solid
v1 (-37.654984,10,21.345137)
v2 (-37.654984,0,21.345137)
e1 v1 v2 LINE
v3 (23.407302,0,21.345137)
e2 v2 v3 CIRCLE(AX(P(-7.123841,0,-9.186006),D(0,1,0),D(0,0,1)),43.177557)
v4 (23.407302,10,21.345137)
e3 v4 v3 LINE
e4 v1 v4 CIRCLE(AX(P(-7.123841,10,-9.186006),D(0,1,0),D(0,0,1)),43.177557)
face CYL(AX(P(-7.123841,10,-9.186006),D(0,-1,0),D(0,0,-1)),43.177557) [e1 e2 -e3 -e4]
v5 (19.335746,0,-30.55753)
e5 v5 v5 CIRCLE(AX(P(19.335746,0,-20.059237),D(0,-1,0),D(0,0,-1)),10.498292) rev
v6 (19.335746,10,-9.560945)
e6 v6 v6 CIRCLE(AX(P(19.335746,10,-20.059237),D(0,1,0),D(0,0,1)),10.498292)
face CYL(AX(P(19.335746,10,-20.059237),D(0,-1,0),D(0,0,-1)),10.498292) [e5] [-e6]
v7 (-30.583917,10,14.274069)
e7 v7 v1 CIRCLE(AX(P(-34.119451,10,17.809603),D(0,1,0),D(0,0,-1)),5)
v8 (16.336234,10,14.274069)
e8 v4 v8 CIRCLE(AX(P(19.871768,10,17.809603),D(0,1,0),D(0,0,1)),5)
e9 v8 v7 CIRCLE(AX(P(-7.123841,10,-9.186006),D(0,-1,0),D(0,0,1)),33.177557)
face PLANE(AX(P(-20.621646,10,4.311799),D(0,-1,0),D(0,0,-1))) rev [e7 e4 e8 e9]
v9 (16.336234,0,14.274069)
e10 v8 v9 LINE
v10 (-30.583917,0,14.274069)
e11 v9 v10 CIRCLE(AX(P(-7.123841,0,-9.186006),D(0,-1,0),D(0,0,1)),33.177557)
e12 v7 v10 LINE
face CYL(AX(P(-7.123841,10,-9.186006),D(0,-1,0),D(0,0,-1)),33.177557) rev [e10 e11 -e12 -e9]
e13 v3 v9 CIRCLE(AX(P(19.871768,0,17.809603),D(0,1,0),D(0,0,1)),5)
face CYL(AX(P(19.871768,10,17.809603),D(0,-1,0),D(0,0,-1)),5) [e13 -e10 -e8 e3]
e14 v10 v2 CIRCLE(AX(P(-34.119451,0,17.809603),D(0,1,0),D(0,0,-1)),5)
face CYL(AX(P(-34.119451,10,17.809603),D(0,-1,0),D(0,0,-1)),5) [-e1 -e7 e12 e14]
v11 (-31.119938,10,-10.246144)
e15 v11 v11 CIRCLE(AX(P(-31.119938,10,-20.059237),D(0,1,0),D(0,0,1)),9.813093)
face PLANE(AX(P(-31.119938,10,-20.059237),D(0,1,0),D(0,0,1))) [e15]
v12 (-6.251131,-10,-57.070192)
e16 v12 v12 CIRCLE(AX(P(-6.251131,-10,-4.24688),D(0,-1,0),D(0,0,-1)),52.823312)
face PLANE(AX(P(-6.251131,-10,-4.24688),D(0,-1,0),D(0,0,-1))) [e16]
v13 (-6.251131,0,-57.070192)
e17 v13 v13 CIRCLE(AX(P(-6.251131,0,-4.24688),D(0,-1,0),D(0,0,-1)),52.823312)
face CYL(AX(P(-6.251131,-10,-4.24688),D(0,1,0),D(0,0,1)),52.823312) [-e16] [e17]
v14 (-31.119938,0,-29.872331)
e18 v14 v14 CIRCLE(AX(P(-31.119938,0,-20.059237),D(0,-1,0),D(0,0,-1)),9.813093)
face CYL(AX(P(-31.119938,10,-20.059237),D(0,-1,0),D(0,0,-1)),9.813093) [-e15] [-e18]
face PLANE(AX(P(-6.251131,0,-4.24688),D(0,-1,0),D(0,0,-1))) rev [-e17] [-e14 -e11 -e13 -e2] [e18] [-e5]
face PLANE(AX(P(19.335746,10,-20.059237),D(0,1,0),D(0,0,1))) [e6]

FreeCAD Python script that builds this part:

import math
import FreeCAD as App
import Part
import Sketcher

V = App.Vector

doc = App.newDocument("Part")
body = doc.addObject("PartDesign::Body", "Body")

# Sketch on XZ plane
sketch1 = body.newObject("Sketcher::SketchObject", "Sketch")
sketch1.AttachmentSupport = (doc.getObject("XZ_Plane"), [""])
sketch1.MapMode = "FlatFace"
sketch1.addGeometry(Part.Circle(V(-31.119938, -20.059237, 0), V(0, 0, 1), 9.813093), False)
sketch1.addConstraint(Sketcher.Constraint("Diameter", 0, 19.626186))
sketch1.addConstraint(Sketcher.Constraint("DistanceX", 0, 3, -1, 1, 31.119938))
sketch1.addConstraint(Sketcher.Constraint("DistanceY", 0, 3, -1, 1, 20.059237))
pad1 = body.newObject("PartDesign::Pad", "Pad")
pad1.Profile = sketch1
pad1.Length = 10
pad1.Reversed = True
body2 = doc.addObject("PartDesign::Body", "Body001")

# Sketch on XZ plane
sketch2 = body2.newObject("Sketcher::SketchObject", "Sketch001")
sketch2.AttachmentSupport = (doc.getObject("XZ_Plane001"), [""])
sketch2.MapMode = "FlatFace"
sketch2.addGeometry(Part.Circle(V(19.335746, -20.059237, 0), V(0, 0, 1), 10.498292), False)
sketch2.addConstraint(Sketcher.Constraint("Diameter", 0, 20.996585))
sketch2.addConstraint(Sketcher.Constraint("DistanceX", -1, 1, 0, 3, 19.335746))
sketch2.addConstraint(Sketcher.Constraint("DistanceY", 0, 3, -1, 1, 20.059237))
pad2 = body2.newObject("PartDesign::Pad", "Pad001")
pad2.Profile = sketch2
pad2.Length = 10
pad2.Reversed = True
body3 = doc.addObject("PartDesign::Body", "Body002")

# Sketch on XZ plane
sketch3 = body3.newObject("Sketcher::SketchObject", "Sketch002")
sketch3.AttachmentSupport = (doc.getObject("XZ_Plane002"), [""])
sketch3.MapMode = "FlatFace"
sketch3.addGeometry(Part.ArcOfCircle(Part.Circle(V(-7.123841, -9.186006, 0), V(0, 0, 1), 43.177557), math.radians(45), math.radians(135)), False)
sketch3.addGeometry(Part.ArcOfCircle(Part.Circle(V(19.871768, 17.809603, 0), V(0, 0, 1), 5), math.radians(-135), math.radians(45)), False)
sketch3.addGeometry(Part.ArcOfCircle(Part.Circle(V(-7.123841, -9.186006, 0), V(0, 0, 1), 33.177557), math.radians(45), math.radians(135)), False)
sketch3.addGeometry(Part.ArcOfCircle(Part.Circle(V(-34.119451, 17.809603, 0), V(0, 0, 1), 5), math.radians(135), math.radians(315)), False)
sketch3.addConstraint(Sketcher.Constraint("Tangent", 0, 1, 1, 2))
sketch3.addConstraint(Sketcher.Constraint("Tangent", 1, 1, 2, 1))
sketch3.addConstraint(Sketcher.Constraint("Tangent", 2, 2, 3, 2))
sketch3.addConstraint(Sketcher.Constraint("Tangent", 3, 1, 0, 2))
sketch3.addConstraint(Sketcher.Constraint("Coincident", 2, 3, 0, 3))
sketch3.addConstraint(Sketcher.Constraint("Horizontal", 1, 3, 3, 3))
sketch3.addConstraint(Sketcher.Constraint("Radius", 1, 5.0))
sketch3.addConstraint(Sketcher.Constraint("Radius", 0, 43.177557))
sketch3.addConstraint(Sketcher.Constraint("DistanceX", -1, 1, 0, 1, 23.407302))
sketch3.addConstraint(Sketcher.Constraint("DistanceX", 0, 3, -1, 1, 7.123841))
sketch3.addConstraint(Sketcher.Constraint("DistanceY", -1, 1, 1, 1, 14.274069))
pad3 = body3.newObject("PartDesign::Pad", "Pad002")
pad3.Profile = sketch3
pad3.Length = 10
pad3.Reversed = True
body.AllowCompound = True
doc.recompute()

boolean = body.newObject("PartDesign::Boolean", "Boolean")
boolean.Type = "Fuse"
boolean.addObjects([body2])
doc.recompute()

boolean2 = body.newObject("PartDesign::Boolean", "Boolean001")
boolean2.Type = "Fuse"
boolean2.addObjects([body3])

# Sketch on XZ plane
sketch4 = body.newObject("Sketcher::SketchObject", "Sketch003")
sketch4.AttachmentSupport = (doc.getObject("XZ_Plane"), [""])
sketch4.MapMode = "FlatFace"
sketch4.addGeometry(Part.Circle(V(-6.251131, -4.24688, 0), V(0, 0, 1), 52.823312), False)
sketch4.addConstraint(Sketcher.Constraint("Diameter", 0, 105.646624))
sketch4.addConstraint(Sketcher.Constraint("DistanceX", 0, 3, -1, 1, 6.251131))
sketch4.addConstraint(Sketcher.Constraint("DistanceY", 0, 3, -1, 1, 4.24688))
pad4 = body.newObject("PartDesign::Pad", "Pad003")
pad4.Profile = sketch4
pad4.Length = 10

doc.recompute()
